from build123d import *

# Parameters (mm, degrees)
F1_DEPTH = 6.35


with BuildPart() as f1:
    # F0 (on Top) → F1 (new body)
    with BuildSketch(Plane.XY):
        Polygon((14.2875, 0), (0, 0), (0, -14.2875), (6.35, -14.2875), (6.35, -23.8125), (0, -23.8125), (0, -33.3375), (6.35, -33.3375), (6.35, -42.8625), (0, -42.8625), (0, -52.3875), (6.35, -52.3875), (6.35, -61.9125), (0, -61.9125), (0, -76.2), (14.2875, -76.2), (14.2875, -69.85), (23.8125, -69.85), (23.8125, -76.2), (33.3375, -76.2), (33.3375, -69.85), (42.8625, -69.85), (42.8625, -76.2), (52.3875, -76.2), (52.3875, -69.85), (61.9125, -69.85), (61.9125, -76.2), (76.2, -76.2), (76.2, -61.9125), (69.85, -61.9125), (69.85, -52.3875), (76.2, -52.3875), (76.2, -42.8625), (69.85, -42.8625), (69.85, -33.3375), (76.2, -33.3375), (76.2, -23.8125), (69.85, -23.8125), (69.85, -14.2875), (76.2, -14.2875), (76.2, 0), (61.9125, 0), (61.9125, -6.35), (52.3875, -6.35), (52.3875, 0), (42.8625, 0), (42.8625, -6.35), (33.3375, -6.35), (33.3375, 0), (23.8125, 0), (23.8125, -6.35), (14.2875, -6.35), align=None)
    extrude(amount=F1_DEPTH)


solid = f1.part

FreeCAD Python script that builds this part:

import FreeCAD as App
import Part
import Sketcher

V = App.Vector
Q = App.Units.Quantity


def add_polygon(sketch, points):
    """Adds a closed chain of lines whose ends are joined by coincident constraints."""
    first, n = sketch.GeometryCount, len(points)
    for a, b in zip(points, points[1:] + points[:1]):
        sketch.addGeometry(Part.LineSegment(App.Vector(*a, 0), App.Vector(*b, 0)), False)
    for i in range(n):
        sketch.addConstraint(Sketcher.Constraint("Coincident", first + i, 2, first + (i + 1) % n, 1))

doc = App.newDocument("Part")
body = doc.addObject("PartDesign::Body", "Body")

sketch1 = body.newObject("Sketcher::SketchObject", "Sketch")
sketch1.AttachmentSupport = (doc.getObject("XY_Plane"), [""])
sketch1.MapMode = "FlatFace"
add_polygon(sketch1, [(14.2875, 0), (0, 0), (0, -14.2875), (6.35, -14.2875), (6.35, -23.8125), (0, -23.8125), (0, -33.3375), (6.35, -33.3375), (6.35, -42.8625), (0, -42.8625), (0, -52.3875), (6.35, -52.3875), (6.35, -61.9125), (0, -61.9125), (0, -76.2), (14.2875, -76.2), (14.2875, -69.85), (23.8125, -69.85), (23.8125, -76.2), (33.3375, -76.2), (33.3375, -69.85), (42.8625, -69.85), (42.8625, -76.2), (52.3875, -76.2), (52.3875, -69.85), (61.9125, -69.85), (61.9125, -76.2), (76.2, -76.2), (76.2, -61.9125), (69.85, -61.9125), (69.85, -52.3875), (76.2, -52.3875), (76.2, -42.8625), (69.85, -42.8625), (69.85, -33.3375), (76.2, -33.3375), (76.2, -23.8125), (69.85, -23.8125), (69.85, -14.2875), (76.2, -14.2875), (76.2, 0), (61.9125, 0), (61.9125, -6.35), (52.3875, -6.35), (52.3875, 0), (42.8625, 0), (42.8625, -6.35), (33.3375, -6.35), (33.3375, 0), (23.8125, 0), (23.8125, -6.35), (14.2875, -6.35)])
sketch1.addConstraint([
    Sketcher.Constraint("Horizontal", 0),
    Sketcher.Constraint("Vertical", 1),
    Sketcher.Constraint("Horizontal", 2),
    Sketcher.Constraint("Vertical", 3),
    Sketcher.Constraint("Horizontal", 4),
    Sketcher.Constraint("Vertical", 5),
    Sketcher.Constraint("Horizontal", 6),
    Sketcher.Constraint("Vertical", 7),
    Sketcher.Constraint("Horizontal", 8),
    Sketcher.Constraint("Vertical", 9),
    Sketcher.Constraint("Horizontal", 10),
    Sketcher.Constraint("Vertical", 11),
    Sketcher.Constraint("Horizontal", 12),
    Sketcher.Constraint("Vertical", 13),
    Sketcher.Constraint("Horizontal", 14),
    Sketcher.Constraint("Vertical", 15),
    Sketcher.Constraint("Horizontal", 16),
    Sketcher.Constraint("Vertical", 17),
    Sketcher.Constraint("Horizontal", 18),
    Sketcher.Constraint("Vertical", 19),
    Sketcher.Constraint("Horizontal", 20),
    Sketcher.Constraint("Vertical", 21),
    Sketcher.Constraint("Horizontal", 22),
    Sketcher.Constraint("Vertical", 23),
    Sketcher.Constraint("Horizontal", 24),
    Sketcher.Constraint("Vertical", 25),
    Sketcher.Constraint("Horizontal", 26),
    Sketcher.Constraint("Vertical", 27),
    Sketcher.Constraint("Horizontal", 28),
    Sketcher.Constraint("Vertical", 29),
    Sketcher.Constraint("Horizontal", 30),
    Sketcher.Constraint("Vertical", 31),
    Sketcher.Constraint("Horizontal", 32),
    Sketcher.Constraint("Vertical", 33),
    Sketcher.Constraint("Horizontal", 34),
    Sketcher.Constraint("Vertical", 35),
    Sketcher.Constraint("Horizontal", 36),
    Sketcher.Constraint("Vertical", 37),
    Sketcher.Constraint("Horizontal", 38),
    Sketcher.Constraint("Vertical", 39),
    Sketcher.Constraint("Horizontal", 40),
    Sketcher.Constraint("Vertical", 41),
    Sketcher.Constraint("Horizontal", 42),
    Sketcher.Constraint("Vertical", 43),
    Sketcher.Constraint("Horizontal", 44),
    Sketcher.Constraint("Vertical", 45),
    Sketcher.Constraint("Horizontal", 46),
    Sketcher.Constraint("Vertical", 47),
    Sketcher.Constraint("Horizontal", 48),
    Sketcher.Constraint("Vertical", 49),
    Sketcher.Constraint("Horizontal", 50),
    Sketcher.Constraint("Vertical", 51),
    Sketcher.Constraint("Coincident", 0, 2, -1, 1),
    Sketcher.Constraint("PointOnObject", 4, 2, -2),
    Sketcher.Constraint("PointOnObject", 8, 2, -2),
    Sketcher.Constraint("PointOnObject", 12, 2, -2),
    Sketcher.Constraint("PointOnObject", 39, 2, -1),
    Sketcher.Constraint("PointOnObject", 43, 2, -1),
    Sketcher.Constraint("PointOnObject", 47, 2, -1),
    Sketcher.Constraint("Horizontal", 14, 2, 17, 2),
    Sketcher.Constraint("Horizontal", 16, 2, 19, 2),
    Sketcher.Constraint("Horizontal", 18, 2, 21, 2),
    Sketcher.Constraint("Horizontal", 20, 2, 23, 2),
    Sketcher.Constraint("Horizontal", 22, 2, 25, 2),
    Sketcher.Constraint("Horizontal", 12, 2, 27, 2),
    Sketcher.Constraint("Horizontal", 10, 2, 29, 2),
    Sketcher.Constraint("Horizontal", 8, 2, 31, 2),
    Sketcher.Constraint("Horizontal", 6, 2, 33, 2),
    Sketcher.Constraint("Horizontal", 4, 2, 35, 2),
    Sketcher.Constraint("Horizontal", 2, 2, 37, 2),
    Sketcher.Constraint("Horizontal", 42, 2, 45, 2),
    Sketcher.Constraint("Horizontal", 46, 2, 49, 2),
    Sketcher.Constraint("Vertical", 3, 2, 6, 2),
    Sketcher.Constraint("Vertical", 7, 2, 10, 2),
    Sketcher.Constraint("Vertical", 27, 2, 30, 2),
    Sketcher.Constraint("Vertical", 29, 2, 32, 2),
    Sketcher.Constraint("Vertical", 31, 2, 34, 2),
    Sketcher.Constraint("Vertical", 33, 2, 36, 2),
    Sketcher.Constraint("Vertical", 35, 2, 38, 2),
    Sketcher.Constraint("Vertical", 25, 2, 40, 2),
    Sketcher.Constraint("Vertical", 23, 2, 42, 2),
    Sketcher.Constraint("Vertical", 21, 2, 44, 2),
    Sketcher.Constraint("Vertical", 19, 2, 46, 2),
    Sketcher.Constraint("Vertical", 17, 2, 48, 2),
    Sketcher.Constraint("Vertical", 15, 2, 50, 2),
    Sketcher.Constraint("Equal", 16, 18),
    Sketcher.Constraint("Equal", 18, 20),
    Sketcher.Constraint("Equal", 20, 22),
    Sketcher.Constraint("Equal", 22, 24),
    Sketcher.Constraint("Equal", 14, 26),
    Sketcher.Constraint("Equal", 12, 28),
    Sketcher.Constraint("Equal", 40, 1),
    Sketcher.Constraint("Equal", 50, 3),
    Sketcher.Constraint("Equal", 3, 5),
    Sketcher.Constraint("Equal", 5, 7),
    Sketcher.Constraint("Equal", 7, 9),
    Sketcher.Constraint("Equal", 9, 11),
    Sketcher.Constraint("Equal", 1, 13),
    Sketcher.Constraint("Equal", 38, 15),
    Sketcher.Constraint("Equal", 25, 41),
    Sketcher.Constraint("DistanceY", 13, 2, -1, 1, Q("3 in")),
    Sketcher.Constraint("DistanceX", 2, 1, 2, 2, Q("0.25 in")),
    Sketcher.Constraint("DistanceX", 0, 2, 0, 1, Q("0.5625 in")),
])
pad1 = body.newObject("PartDesign::Pad", "Pad")
pad1.Profile = sketch1
pad1.Length = Q("0.25 in")

doc.recompute()
